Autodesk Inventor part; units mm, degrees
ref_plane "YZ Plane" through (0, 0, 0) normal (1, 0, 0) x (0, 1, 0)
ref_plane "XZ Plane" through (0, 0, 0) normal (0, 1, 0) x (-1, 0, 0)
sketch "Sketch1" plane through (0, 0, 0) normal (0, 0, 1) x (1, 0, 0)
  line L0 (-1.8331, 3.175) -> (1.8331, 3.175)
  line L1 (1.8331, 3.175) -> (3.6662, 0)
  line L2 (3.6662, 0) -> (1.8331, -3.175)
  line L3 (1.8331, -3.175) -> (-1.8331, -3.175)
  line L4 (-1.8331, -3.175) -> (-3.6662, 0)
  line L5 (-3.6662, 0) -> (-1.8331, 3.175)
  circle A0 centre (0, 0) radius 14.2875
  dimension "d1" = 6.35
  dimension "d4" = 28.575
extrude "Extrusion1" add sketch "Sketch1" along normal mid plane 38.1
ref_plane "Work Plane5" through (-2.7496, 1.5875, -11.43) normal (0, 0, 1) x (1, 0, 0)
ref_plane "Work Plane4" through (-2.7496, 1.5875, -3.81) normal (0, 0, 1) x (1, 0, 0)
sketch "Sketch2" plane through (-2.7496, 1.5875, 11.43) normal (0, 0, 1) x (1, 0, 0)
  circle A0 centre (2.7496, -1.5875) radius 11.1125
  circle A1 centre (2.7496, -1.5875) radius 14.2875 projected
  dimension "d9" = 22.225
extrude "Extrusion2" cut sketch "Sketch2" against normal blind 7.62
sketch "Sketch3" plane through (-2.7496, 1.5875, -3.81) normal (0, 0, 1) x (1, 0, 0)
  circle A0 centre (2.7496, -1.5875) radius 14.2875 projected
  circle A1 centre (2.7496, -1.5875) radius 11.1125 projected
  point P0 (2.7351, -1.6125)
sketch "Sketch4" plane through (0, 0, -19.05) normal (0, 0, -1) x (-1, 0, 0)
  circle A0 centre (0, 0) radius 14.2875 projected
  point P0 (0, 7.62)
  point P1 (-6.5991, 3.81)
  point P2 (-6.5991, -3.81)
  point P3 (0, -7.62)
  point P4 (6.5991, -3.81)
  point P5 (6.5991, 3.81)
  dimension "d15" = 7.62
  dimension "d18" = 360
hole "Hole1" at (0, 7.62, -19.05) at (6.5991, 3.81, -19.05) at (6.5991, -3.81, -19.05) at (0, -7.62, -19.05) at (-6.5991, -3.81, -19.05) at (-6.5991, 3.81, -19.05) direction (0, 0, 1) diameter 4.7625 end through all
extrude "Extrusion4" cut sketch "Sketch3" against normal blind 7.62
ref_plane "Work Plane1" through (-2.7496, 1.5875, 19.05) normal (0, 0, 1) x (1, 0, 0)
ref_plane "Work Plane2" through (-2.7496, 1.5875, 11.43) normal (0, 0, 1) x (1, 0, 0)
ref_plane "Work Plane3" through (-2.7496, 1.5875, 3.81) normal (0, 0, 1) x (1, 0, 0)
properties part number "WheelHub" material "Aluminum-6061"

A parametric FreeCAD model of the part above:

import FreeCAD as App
import Part
import Sketcher
from FreeCAD import Vector
Q = App.Units.Quantity

doc = App.newDocument("Part")
body = doc.addObject("PartDesign::Body", "Body")

sketch1 = body.newObject("Sketcher::SketchObject", "Sketch")
sketch1.AttachmentSupport = (doc.getObject("XY_Plane"), [""])
sketch1.MapMode = "FlatFace"
sketch1.addGeometry([
    Part.Circle(Vector(0, 0, 0), Vector(0, 0, 1), 14.3),
    Part.LineSegment(Vector(-3.7, 0, 0), Vector(-1.8, 3.2, 0)),
    Part.LineSegment(Vector(-1.8, 3.2, 0), Vector(1.8, 3.2, 0)),
    Part.LineSegment(Vector(1.8, 3.2, 0), Vector(3.7, 0, 0)),
    Part.LineSegment(Vector(3.7, 0, 0), Vector(1.8, -3.2, 0)),
    Part.LineSegment(Vector(1.8, -3.2, 0), Vector(-1.8, -3.2, 0)),
    Part.LineSegment(Vector(-1.8, -3.2, 0), Vector(-3.7, 0, 0)),
], False)
sketch1.addConstraint([
    Sketcher.Constraint("Coincident", 1, 2, 2, 1),
    Sketcher.Constraint("Coincident", 2, 2, 3, 1),
    Sketcher.Constraint("Coincident", 3, 2, 4, 1),
    Sketcher.Constraint("Coincident", 4, 2, 5, 1),
    Sketcher.Constraint("Coincident", 5, 2, 6, 1),
    Sketcher.Constraint("Coincident", 6, 2, 1, 1),
    Sketcher.Constraint("Horizontal", 2),
    Sketcher.Constraint("Horizontal", 5),
    Sketcher.Constraint("Coincident", 0, 3, -1, 1),
    Sketcher.Constraint("Symmetric", 1, 2, 4, 2, -1, 1),
    Sketcher.Constraint("Symmetric", 3, 2, 6, 2, -1, 1),
    Sketcher.Constraint("PointOnObject", 3, 2, -1),
    Sketcher.Constraint("Parallel", 3, 6),
    Sketcher.Constraint("Vertical", 2, 2, 4, 2),
    Sketcher.Constraint("Diameter", 0, Q("1.125 in")),
    Sketcher.Constraint("DistanceY", 4, 2, 2, 2, Q("0.25 in")),
    Sketcher.Constraint("Angle", 1, Q("59.9998 deg")),
    Sketcher.Constraint("DistanceX", 2, 1, 2, 2, 3.6662),
])
pad1 = body.newObject("PartDesign::Pad", "Pad")
pad1.Profile = sketch1
pad1.Length = Q("1.5 in")
pad1.Midplane = True

sketch2 = body.newObject("Sketcher::SketchObject", "Sketch001")
sketch2.AttachmentSupport = (doc.getObject("XY_Plane"), [""])
sketch2.MapMode = "FlatFace"
sketch2.AttachmentOffset = App.Placement(Vector(0, 0, 0.45 * 25.4), App.Rotation())
sketch2.addGeometry([
    Part.Circle(Vector(0, 0, 0), Vector(0, 0, 1), 14),
    Part.Circle(Vector(0, 0, 0), Vector(0, 0, 1), 11),
], False)
sketch2.addConstraint([
    Sketcher.Constraint("Coincident", 0, 3, -1, 1),
    Sketcher.Constraint("Coincident", 1, 3, -1, 1),
    Sketcher.Constraint("Diameter", 1, Q("0.875 in")),
    Sketcher.Constraint("Diameter", 0, Q("1.125 in")),
])
pocket1 = body.newObject("PartDesign::Pocket", "Pocket")
pocket1.Profile = sketch2
pocket1.Length = Q("0.3 in")

sketch3 = body.newObject("Sketcher::SketchObject", "Sketch002")
sketch3.AttachmentSupport = (doc.getObject("XY_Plane"), [""])
sketch3.MapMode = "FlatFace"
sketch3.AttachmentOffset = App.Placement(Vector(0, 0, -0.75 * 25.4), App.Rotation())
sketch3.addGeometry([
    Part.Circle(Vector(0, 7.6, 0), Vector(0, 0, 1), 2.4),
    Part.Circle(Vector(6.6, 3.8, 0), Vector(0, 0, 1), 2.4),
    Part.Circle(Vector(6.6, -3.8, 0), Vector(0, 0, 1), 2.4),
    Part.Circle(Vector(0, -7.6, 0), Vector(0, 0, 1), 2.4),
    Part.Circle(Vector(-6.6, -3.8, 0), Vector(0, 0, 1), 2.4),
    Part.Circle(Vector(-6.6, 3.8, 0), Vector(0, 0, 1), 2.4),
], False)
sketch3.addConstraint([
    Sketcher.Constraint("Equal", 0, 1),
    Sketcher.Constraint("Equal", 1, 2),
    Sketcher.Constraint("Equal", 2, 3),
    Sketcher.Constraint("Equal", 3, 4),
    Sketcher.Constraint("Equal", 4, 5),
    Sketcher.Constraint("Symmetric", 0, 3, 3, 3, -1, 1),
    Sketcher.Constraint("Symmetric", 1, 3, 4, 3, -1, 1),
    Sketcher.Constraint("Symmetric", 2, 3, 5, 3, -1, 1),
    Sketcher.Constraint("Symmetric", 2, 3, 4, 3, -2),
    Sketcher.Constraint("PointOnObject", 0, 3, -2),
    Sketcher.Constraint("Diameter", 0, Q("0.1875 in")),
    Sketcher.Constraint("DistanceY", -1, 1, 0, 3, Q("0.3 in")),
    Sketcher.Constraint("DistanceY", 2, 3, 1, 3, Q("0.3 in")),
    Sketcher.Constraint("DistanceX", -1, 1, 1, 3, Q("0.2598 in")),
])
doc.recompute()
hole = body.newObject("PartDesign::Hole", "Hole")
hole.Profile = sketch3
hole.ThreadType = "None"
hole.Diameter = Q("0.1875 in")
hole.DepthType = "ThroughAll"
hole.Reversed = True

sketch4 = body.newObject("Sketcher::SketchObject", "Sketch003")
sketch4.AttachmentSupport = (doc.getObject("XY_Plane"), [""])
sketch4.MapMode = "FlatFace"
sketch4.AttachmentOffset = App.Placement(Vector(0, 0, -0.15 * 25.4), App.Rotation())
sketch4.addGeometry([
    Part.Circle(Vector(0, 0, 0), Vector(0, 0, 1), 14),
    Part.Circle(Vector(0, 0, 0), Vector(0, 0, 1), 11),
], False)
sketch4.addConstraint([
    Sketcher.Constraint("Coincident", 0, 3, -1, 1),
    Sketcher.Constraint("Coincident", 1, 3, -1, 1),
    Sketcher.Constraint("Diameter", 0, Q("1.125 in")),
    Sketcher.Constraint("Diameter", 1, Q("0.875 in")),
])
pocket2 = body.newObject("PartDesign::Pocket", "Pocket001")
pocket2.Profile = sketch4
pocket2.Length = Q("0.3 in")

doc.recompute()
